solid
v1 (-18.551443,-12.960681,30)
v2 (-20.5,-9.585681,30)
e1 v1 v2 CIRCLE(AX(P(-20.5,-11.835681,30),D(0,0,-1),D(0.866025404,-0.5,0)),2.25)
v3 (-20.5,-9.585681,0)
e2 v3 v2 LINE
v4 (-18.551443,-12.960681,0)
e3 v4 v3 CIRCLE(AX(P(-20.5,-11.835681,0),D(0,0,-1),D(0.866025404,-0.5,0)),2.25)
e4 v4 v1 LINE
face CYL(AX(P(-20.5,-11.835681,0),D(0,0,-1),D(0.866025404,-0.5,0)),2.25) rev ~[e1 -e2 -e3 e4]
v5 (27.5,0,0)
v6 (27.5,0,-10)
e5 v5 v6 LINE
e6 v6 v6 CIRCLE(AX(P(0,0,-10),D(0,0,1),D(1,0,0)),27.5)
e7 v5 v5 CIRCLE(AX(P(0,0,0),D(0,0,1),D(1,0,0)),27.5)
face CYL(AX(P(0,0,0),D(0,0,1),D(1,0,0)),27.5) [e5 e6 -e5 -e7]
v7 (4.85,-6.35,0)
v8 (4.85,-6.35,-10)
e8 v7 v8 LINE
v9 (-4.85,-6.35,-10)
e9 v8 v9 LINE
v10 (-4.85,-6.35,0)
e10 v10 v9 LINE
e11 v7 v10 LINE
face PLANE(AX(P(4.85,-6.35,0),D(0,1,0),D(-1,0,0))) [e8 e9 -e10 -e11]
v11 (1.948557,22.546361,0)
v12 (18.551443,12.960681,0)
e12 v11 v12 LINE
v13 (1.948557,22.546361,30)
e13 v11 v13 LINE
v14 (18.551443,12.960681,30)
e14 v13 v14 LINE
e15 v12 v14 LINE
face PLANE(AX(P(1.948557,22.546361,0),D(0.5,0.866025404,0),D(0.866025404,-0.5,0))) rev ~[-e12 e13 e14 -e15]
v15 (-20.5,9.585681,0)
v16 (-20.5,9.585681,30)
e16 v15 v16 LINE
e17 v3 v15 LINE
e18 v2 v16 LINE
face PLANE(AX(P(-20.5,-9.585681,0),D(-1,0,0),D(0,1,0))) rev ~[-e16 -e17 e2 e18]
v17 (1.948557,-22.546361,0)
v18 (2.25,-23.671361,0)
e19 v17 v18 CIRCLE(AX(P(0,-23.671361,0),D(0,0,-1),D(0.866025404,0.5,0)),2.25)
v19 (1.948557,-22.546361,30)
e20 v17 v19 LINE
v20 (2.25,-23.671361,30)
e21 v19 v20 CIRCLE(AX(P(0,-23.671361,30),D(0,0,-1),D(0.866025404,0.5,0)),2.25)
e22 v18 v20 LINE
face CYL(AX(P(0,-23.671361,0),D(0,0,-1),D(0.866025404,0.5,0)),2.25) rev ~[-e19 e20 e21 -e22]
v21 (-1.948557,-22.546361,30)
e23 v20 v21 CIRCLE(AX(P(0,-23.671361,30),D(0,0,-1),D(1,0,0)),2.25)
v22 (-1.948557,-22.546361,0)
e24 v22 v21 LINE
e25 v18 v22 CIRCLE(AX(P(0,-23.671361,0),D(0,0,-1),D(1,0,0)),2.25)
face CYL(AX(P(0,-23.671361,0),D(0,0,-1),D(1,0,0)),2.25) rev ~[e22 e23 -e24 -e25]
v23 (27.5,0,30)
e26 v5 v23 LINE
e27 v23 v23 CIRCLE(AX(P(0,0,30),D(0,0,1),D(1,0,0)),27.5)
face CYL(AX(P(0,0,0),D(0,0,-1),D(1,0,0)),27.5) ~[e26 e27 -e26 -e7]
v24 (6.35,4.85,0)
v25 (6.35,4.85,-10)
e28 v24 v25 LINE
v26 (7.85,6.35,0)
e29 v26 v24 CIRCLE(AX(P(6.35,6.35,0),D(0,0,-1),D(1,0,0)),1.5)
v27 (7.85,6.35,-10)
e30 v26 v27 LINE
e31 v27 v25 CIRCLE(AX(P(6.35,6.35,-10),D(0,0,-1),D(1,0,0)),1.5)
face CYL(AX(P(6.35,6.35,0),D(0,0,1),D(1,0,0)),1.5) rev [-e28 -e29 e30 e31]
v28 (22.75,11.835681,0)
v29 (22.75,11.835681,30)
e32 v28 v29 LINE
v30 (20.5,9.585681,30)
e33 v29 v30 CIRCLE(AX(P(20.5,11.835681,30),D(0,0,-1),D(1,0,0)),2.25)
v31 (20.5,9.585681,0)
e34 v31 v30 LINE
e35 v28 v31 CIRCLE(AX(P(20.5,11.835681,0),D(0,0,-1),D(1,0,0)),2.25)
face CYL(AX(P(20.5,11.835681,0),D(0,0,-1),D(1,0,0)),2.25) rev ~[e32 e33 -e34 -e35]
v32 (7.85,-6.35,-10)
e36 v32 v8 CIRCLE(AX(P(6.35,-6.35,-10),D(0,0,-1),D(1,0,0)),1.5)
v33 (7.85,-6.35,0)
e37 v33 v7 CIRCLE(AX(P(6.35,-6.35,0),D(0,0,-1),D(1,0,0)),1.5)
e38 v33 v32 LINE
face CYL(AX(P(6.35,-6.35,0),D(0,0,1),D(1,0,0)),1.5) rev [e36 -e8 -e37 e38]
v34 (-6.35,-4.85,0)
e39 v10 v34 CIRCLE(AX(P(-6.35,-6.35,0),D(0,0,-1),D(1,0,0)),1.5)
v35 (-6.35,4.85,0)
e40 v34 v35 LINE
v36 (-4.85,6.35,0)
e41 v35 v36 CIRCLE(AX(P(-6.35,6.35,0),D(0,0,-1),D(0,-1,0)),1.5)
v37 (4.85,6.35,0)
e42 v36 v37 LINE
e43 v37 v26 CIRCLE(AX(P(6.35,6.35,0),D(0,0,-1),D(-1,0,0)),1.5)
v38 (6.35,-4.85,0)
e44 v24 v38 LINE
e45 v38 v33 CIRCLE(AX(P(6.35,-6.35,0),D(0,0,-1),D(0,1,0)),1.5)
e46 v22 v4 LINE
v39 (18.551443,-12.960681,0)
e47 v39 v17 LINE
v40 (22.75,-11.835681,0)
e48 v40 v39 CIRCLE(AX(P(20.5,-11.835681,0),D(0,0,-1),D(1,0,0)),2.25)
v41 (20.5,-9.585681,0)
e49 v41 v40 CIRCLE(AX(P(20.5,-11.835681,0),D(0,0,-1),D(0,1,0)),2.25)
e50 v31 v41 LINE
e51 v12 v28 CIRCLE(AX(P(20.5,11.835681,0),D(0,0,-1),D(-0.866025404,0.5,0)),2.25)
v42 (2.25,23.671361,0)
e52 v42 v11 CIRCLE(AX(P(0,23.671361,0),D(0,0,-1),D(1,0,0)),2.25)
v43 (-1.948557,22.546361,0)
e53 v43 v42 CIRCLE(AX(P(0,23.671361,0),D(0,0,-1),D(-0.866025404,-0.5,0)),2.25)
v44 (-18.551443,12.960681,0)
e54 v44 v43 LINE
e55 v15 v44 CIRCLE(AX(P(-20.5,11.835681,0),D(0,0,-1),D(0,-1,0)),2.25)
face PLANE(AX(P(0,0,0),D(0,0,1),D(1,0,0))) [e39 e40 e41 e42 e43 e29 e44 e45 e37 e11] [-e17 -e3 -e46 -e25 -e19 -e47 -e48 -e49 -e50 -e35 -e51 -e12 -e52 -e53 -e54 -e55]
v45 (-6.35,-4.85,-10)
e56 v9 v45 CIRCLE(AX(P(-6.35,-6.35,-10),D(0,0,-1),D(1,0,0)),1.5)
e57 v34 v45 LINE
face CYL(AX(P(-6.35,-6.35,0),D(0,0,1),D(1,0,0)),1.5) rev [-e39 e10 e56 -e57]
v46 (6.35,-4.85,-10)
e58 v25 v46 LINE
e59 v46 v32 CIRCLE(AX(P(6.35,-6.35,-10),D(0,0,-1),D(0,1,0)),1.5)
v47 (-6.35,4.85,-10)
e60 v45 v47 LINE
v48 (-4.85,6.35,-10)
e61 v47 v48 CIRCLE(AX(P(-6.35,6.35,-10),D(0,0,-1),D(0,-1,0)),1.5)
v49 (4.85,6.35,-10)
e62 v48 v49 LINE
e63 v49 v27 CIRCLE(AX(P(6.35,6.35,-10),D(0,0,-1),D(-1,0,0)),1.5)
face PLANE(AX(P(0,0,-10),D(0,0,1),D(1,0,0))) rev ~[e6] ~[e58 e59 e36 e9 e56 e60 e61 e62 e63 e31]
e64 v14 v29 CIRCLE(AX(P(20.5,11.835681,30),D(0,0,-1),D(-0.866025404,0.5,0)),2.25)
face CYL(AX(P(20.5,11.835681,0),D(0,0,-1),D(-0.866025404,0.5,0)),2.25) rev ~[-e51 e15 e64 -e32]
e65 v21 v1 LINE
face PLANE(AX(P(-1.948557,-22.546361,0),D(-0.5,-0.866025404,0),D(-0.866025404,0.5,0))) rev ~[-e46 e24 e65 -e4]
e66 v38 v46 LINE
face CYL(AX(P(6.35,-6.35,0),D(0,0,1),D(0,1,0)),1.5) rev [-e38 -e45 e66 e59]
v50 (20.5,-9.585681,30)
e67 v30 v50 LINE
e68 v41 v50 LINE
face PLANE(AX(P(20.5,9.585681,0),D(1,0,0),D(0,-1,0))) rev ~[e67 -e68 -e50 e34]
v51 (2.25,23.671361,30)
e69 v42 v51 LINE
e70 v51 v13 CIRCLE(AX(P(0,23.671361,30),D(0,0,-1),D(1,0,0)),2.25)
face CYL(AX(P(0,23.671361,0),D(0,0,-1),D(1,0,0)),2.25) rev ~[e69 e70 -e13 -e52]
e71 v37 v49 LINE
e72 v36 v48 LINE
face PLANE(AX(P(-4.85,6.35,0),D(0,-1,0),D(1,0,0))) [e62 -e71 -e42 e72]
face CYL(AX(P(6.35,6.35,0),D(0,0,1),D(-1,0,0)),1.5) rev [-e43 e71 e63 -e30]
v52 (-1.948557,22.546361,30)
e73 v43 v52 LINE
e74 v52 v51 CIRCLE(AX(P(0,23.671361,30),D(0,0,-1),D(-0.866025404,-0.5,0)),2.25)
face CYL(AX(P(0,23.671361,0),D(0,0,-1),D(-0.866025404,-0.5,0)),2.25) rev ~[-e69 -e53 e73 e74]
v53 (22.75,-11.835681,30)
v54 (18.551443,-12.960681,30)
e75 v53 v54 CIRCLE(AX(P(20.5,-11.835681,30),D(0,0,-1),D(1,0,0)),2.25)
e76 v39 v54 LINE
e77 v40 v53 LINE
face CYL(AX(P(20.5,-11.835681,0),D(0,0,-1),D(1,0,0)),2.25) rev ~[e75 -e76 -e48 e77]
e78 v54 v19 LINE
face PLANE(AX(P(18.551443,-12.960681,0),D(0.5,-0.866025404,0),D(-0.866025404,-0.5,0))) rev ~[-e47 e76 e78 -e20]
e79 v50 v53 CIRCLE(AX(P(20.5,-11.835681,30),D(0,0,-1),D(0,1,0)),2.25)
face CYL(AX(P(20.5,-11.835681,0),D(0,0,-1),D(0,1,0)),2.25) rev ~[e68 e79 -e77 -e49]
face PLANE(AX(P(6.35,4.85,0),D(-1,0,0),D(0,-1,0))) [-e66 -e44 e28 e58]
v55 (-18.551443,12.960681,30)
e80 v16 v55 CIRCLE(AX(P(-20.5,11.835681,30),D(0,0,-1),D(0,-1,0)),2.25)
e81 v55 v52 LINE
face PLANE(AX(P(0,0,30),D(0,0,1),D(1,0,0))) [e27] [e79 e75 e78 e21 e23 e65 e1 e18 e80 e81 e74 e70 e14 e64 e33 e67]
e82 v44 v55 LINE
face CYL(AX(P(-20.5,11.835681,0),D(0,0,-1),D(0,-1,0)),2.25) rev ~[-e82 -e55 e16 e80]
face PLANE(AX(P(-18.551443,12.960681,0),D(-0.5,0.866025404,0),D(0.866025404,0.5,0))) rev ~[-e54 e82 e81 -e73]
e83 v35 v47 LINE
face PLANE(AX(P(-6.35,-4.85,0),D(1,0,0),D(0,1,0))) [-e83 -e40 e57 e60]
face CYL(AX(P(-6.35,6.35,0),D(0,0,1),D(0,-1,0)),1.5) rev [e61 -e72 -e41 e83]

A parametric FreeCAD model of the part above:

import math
import FreeCAD as App
import Part
import Sketcher

V = App.Vector
Q = App.Units.Quantity

doc = App.newDocument("Part")
body = doc.addObject("PartDesign::Body", "Body")

sketch1 = body.newObject("Sketcher::SketchObject", "Sketch")
sketch1.AttachmentSupport = (doc.getObject("XY_Plane"), [""])
sketch1.MapMode = "FlatFace"
sketch1.addGeometry(Part.Circle(V(0, 0, 0), V(0, 0, 1), 27.5), False)
sketch1.addGeometry(Part.LineSegment(V(-6.35, -4.85, 0), V(-6.35, 4.85, 0)), False)
sketch1.addGeometry(Part.ArcOfCircle(Part.Circle(V(-6.35, 6.35, 0), V(0, 0, 1), 1.5), math.radians(0), math.radians(270)), False)
sketch1.addGeometry(Part.LineSegment(V(-4.85, 6.35, 0), V(4.85, 6.35, 0)), False)
sketch1.addGeometry(Part.ArcOfCircle(Part.Circle(V(6.35, 6.35, 0), V(0, 0, 1), 1.5), math.radians(0), math.radians(180)), False)
sketch1.addGeometry(Part.ArcOfCircle(Part.Circle(V(6.35, 6.35, 0), V(0, 0, 1), 1.5), math.radians(-90), math.radians(0)), False)
sketch1.addGeometry(Part.LineSegment(V(6.35, 4.85, 0), V(6.35, -4.85, 0)), False)
sketch1.addGeometry(Part.ArcOfCircle(Part.Circle(V(6.35, -6.35, 0), V(0, 0, 1), 1.5), math.radians(0), math.radians(90)), False)
sketch1.addGeometry(Part.ArcOfCircle(Part.Circle(V(6.35, -6.35, 0), V(0, 0, 1), 1.5), math.radians(180), math.radians(360)), False)
sketch1.addGeometry(Part.LineSegment(V(4.85, -6.35, 0), V(-4.85, -6.35, 0)), False)
sketch1.addGeometry(Part.ArcOfCircle(Part.Circle(V(-6.35, -6.35, 0), V(0, 0, 1), 1.5), math.radians(90), math.radians(360)), False)
sketch1.addConstraint(Sketcher.Constraint("Coincident", 1, 2, 2, 2))
sketch1.addConstraint(Sketcher.Constraint("Coincident", 2, 1, 3, 1))
sketch1.addConstraint(Sketcher.Constraint("Coincident", 3, 2, 4, 2))
sketch1.addConstraint(Sketcher.Constraint("Tangent", 4, 1, 5, 2))
sketch1.addConstraint(Sketcher.Constraint("Coincident", 5, 1, 6, 1))
sketch1.addConstraint(Sketcher.Constraint("Coincident", 6, 2, 7, 2))
sketch1.addConstraint(Sketcher.Constraint("Tangent", 7, 1, 8, 2))
sketch1.addConstraint(Sketcher.Constraint("Coincident", 8, 1, 9, 1))
sketch1.addConstraint(Sketcher.Constraint("Coincident", 9, 2, 10, 2))
sketch1.addConstraint(Sketcher.Constraint("Coincident", 10, 1, 1, 1))
sketch1.addConstraint(Sketcher.Constraint("Vertical", 1))
sketch1.addConstraint(Sketcher.Constraint("Horizontal", 3))
sketch1.addConstraint(Sketcher.Constraint("Vertical", 6))
sketch1.addConstraint(Sketcher.Constraint("Horizontal", 9))
sketch1.addConstraint(Sketcher.Constraint("Coincident", 0, 3, -1, 1))
sketch1.addConstraint(Sketcher.Constraint("Equal", 2, 4))
sketch1.addConstraint(Sketcher.Constraint("Equal", 4, 5))
sketch1.addConstraint(Sketcher.Constraint("Equal", 5, 7))
sketch1.addConstraint(Sketcher.Constraint("Equal", 7, 8))
sketch1.addConstraint(Sketcher.Constraint("Equal", 8, 10))
sketch1.addConstraint(Sketcher.Constraint("Symmetric", 2, 3, 7, 3, -1, 1))
sketch1.addConstraint(Sketcher.Constraint("Symmetric", 4, 3, 10, 3, -1, 1))
sketch1.addConstraint(Sketcher.Constraint("Symmetric", 2, 3, 4, 3, -2))
sketch1.addConstraint(Sketcher.Constraint("Horizontal", 5, 3, 2, 1))
sketch1.addConstraint(Sketcher.Constraint("Horizontal", 3, 2, 4, 1))
sketch1.addConstraint(Sketcher.Constraint("Horizontal", 10, 3, 7, 1))
sketch1.addConstraint(Sketcher.Constraint("Horizontal", 7, 1, 8, 1))
sketch1.addConstraint(Sketcher.Constraint("Vertical", 10, 3, 1, 2))
sketch1.addConstraint(Sketcher.Constraint("Vertical", 8, 3, 5, 1))
sketch1.addConstraint(Sketcher.Constraint("Equal", 9, 1))
sketch1.addConstraint(Sketcher.Constraint("Diameter", 0, Q("55 mm")))
sketch1.addConstraint(Sketcher.Constraint("Radius", 2, Q("1.5 mm")))
sketch1.addConstraint(Sketcher.Constraint("DistanceX", 3, 1, 3, 2, Q("9.7 mm")))
pad1 = body.newObject("PartDesign::Pad", "Pad")
pad1.Profile = sketch1
pad1.Length = 10
pad1.Reversed = True

sketch2 = body.newObject("Sketcher::SketchObject", "Sketch001")
sketch2.AttachmentSupport = (doc.getObject("XY_Plane"), [""])
sketch2.MapMode = "FlatFace"
sketch2.addGeometry(Part.Circle(V(0, 0, 0), V(0, 0, 1), 27.5), False)
sketch2.addGeometry(Part.ArcOfCircle(Part.Circle(V(20.5, 11.835681, 0), V(0, 0, 1), 2.25), math.radians(0), math.radians(150)), False)
sketch2.addGeometry(Part.ArcOfCircle(Part.Circle(V(20.5, 11.835681, 0), V(0, 0, 1), 2.25), math.radians(-90), math.radians(0)), False)
sketch2.addGeometry(Part.LineSegment(V(20.5, 9.585681, 0), V(20.5, -9.585681, 0)), False)
sketch2.addGeometry(Part.ArcOfCircle(Part.Circle(V(20.5, -11.835681, 0), V(0, 0, 1), 2.25), math.radians(0), math.radians(90)), False)
sketch2.addGeometry(Part.ArcOfCircle(Part.Circle(V(20.5, -11.835681, 0), V(0, 0, 1), 2.25), math.radians(-150), math.radians(0)), False)
sketch2.addGeometry(Part.LineSegment(V(18.551443, -12.960681, 0), V(1.948557, -22.546361, 0)), False)
sketch2.addGeometry(Part.ArcOfCircle(Part.Circle(V(0, -23.671361, 0), V(0, 0, 1), 2.25), math.radians(0), math.radians(30)), False)
sketch2.addGeometry(Part.ArcOfCircle(Part.Circle(V(0, -23.671361, 0), V(0, 0, 1), 2.25), math.radians(150), math.radians(360)), False)
sketch2.addGeometry(Part.LineSegment(V(-1.948557, -22.546361, 0), V(-18.551443, -12.960681, 0)), False)
sketch2.addGeometry(Part.ArcOfCircle(Part.Circle(V(-20.5, -11.835681, 0), V(0, 0, 1), 2.25), math.radians(90), math.radians(330)), False)
sketch2.addGeometry(Part.LineSegment(V(-20.5, -9.585681, 0), V(-20.5, 9.585681, 0)), False)
sketch2.addGeometry(Part.ArcOfCircle(Part.Circle(V(-20.5, 11.835681, 0), V(0, 0, 1), 2.25), math.radians(30), math.radians(270)), False)
sketch2.addGeometry(Part.LineSegment(V(-18.551443, 12.960681, 0), V(-1.948557, 22.546361, 0)), False)
sketch2.addGeometry(Part.ArcOfCircle(Part.Circle(V(0, 23.671361, 0), V(0, 0, 1), 2.25), math.radians(0), math.radians(210)), False)
sketch2.addGeometry(Part.ArcOfCircle(Part.Circle(V(0, 23.671361, 0), V(0, 0, 1), 2.25), math.radians(-30), math.radians(0)), False)
sketch2.addGeometry(Part.LineSegment(V(1.948557, 22.546361, 0), V(18.551443, 12.960681, 0)), False)
sketch2.addConstraint(Sketcher.Constraint("Tangent", 1, 1, 2, 2))
sketch2.addConstraint(Sketcher.Constraint("Coincident", 2, 1, 3, 1))
sketch2.addConstraint(Sketcher.Constraint("Coincident", 3, 2, 4, 2))
sketch2.addConstraint(Sketcher.Constraint("Tangent", 4, 1, 5, 2))
sketch2.addConstraint(Sketcher.Constraint("Coincident", 5, 1, 6, 1))
sketch2.addConstraint(Sketcher.Constraint("Coincident", 6, 2, 7, 2))
sketch2.addConstraint(Sketcher.Constraint("Tangent", 7, 1, 8, 2))
sketch2.addConstraint(Sketcher.Constraint("Coincident", 8, 1, 9, 1))
sketch2.addConstraint(Sketcher.Constraint("Coincident", 9, 2, 10, 2))
sketch2.addConstraint(Sketcher.Constraint("Coincident", 10, 1, 11, 1))
sketch2.addConstraint(Sketcher.Constraint("Coincident", 11, 2, 12, 2))
sketch2.addConstraint(Sketcher.Constraint("Coincident", 12, 1, 13, 1))
sketch2.addConstraint(Sketcher.Constraint("Coincident", 13, 2, 14, 2))
sketch2.addConstraint(Sketcher.Constraint("Tangent", 14, 1, 15, 2))
sketch2.addConstraint(Sketcher.Constraint("Coincident", 15, 1, 16, 1))
sketch2.addConstraint(Sketcher.Constraint("Coincident", 16, 2, 1, 2))
sketch2.addConstraint(Sketcher.Constraint("Vertical", 3))
sketch2.addConstraint(Sketcher.Constraint("Vertical", 11))
sketch2.addConstraint(Sketcher.Constraint("Coincident", 0, 3, -1, 1))
sketch2.addConstraint(Sketcher.Constraint("Equal", 1, 2))
sketch2.addConstraint(Sketcher.Constraint("Equal", 2, 4))
sketch2.addConstraint(Sketcher.Constraint("Equal", 4, 5))
sketch2.addConstraint(Sketcher.Constraint("Equal", 5, 7))
sketch2.addConstraint(Sketcher.Constraint("Equal", 7, 8))
sketch2.addConstraint(Sketcher.Constraint("Equal", 8, 10))
sketch2.addConstraint(Sketcher.Constraint("Equal", 10, 12))
sketch2.addConstraint(Sketcher.Constraint("Equal", 12, 14))
sketch2.addConstraint(Sketcher.Constraint("Equal", 14, 15))
sketch2.addConstraint(Sketcher.Constraint("Symmetric", 1, 3, 10, 3, -1, 1))
sketch2.addConstraint(Sketcher.Constraint("Symmetric", 4, 3, 12, 3, -1, 1))
sketch2.addConstraint(Sketcher.Constraint("Symmetric", 7, 3, 14, 3, -1, 1))
sketch2.addConstraint(Sketcher.Constraint("Symmetric", 4, 3, 10, 3, -2))
sketch2.addConstraint(Sketcher.Constraint("Symmetric", 6, 2, 8, 1, -2))
sketch2.addConstraint(Sketcher.Constraint("Parallel", 6, 13))
sketch2.addConstraint(Sketcher.Constraint("Parallel", 9, 16))
sketch2.addConstraint(Sketcher.Constraint("Horizontal", 12, 3, 1, 1))
sketch2.addConstraint(Sketcher.Constraint("Horizontal", 10, 3, 4, 1))
sketch2.addConstraint(Sketcher.Constraint("Horizontal", 8, 3, 7, 1))
sketch2.addConstraint(Sketcher.Constraint("Horizontal", 5, 1, 9, 2))
sketch2.addConstraint(Sketcher.Constraint("Horizontal", 15, 3, 14, 1))
sketch2.addConstraint(Sketcher.Constraint("Horizontal", 13, 2, 15, 1))
sketch2.addConstraint(Sketcher.Constraint("Vertical", 5, 3, 2, 1))
sketch2.addConstraint(Sketcher.Constraint("Vertical", 12, 3, 10, 1))
sketch2.addConstraint(Sketcher.Constraint("Vertical", 9, 2, 12, 1))
sketch2.addConstraint(Sketcher.Constraint("Diameter", 0, Q("55 mm")))
sketch2.addConstraint(Sketcher.Constraint("Angle", 6, Q("-150 deg")))
sketch2.addConstraint(Sketcher.Constraint("Radius", 1, Q("2.25 mm")))
sketch2.addConstraint(Sketcher.Constraint("DistanceX", 10, 3, 4, 3, Q("41 mm")))
sketch2.addConstraint(Sketcher.Constraint("DistanceY", 5, 1, 4, 3, Q("1.125 mm")))
sketch2.addConstraint(Sketcher.Constraint("DistanceY", 7, 3, 6, 2, Q("1.125 mm")))
sketch2.addConstraint(Sketcher.Constraint("DistanceY", 3, 2, 3, 1, Q("19.171361 mm")))
pad2 = body.newObject("PartDesign::Pad", "Pad001")
pad2.Profile = sketch2
pad2.Length = 30

doc.recompute()
